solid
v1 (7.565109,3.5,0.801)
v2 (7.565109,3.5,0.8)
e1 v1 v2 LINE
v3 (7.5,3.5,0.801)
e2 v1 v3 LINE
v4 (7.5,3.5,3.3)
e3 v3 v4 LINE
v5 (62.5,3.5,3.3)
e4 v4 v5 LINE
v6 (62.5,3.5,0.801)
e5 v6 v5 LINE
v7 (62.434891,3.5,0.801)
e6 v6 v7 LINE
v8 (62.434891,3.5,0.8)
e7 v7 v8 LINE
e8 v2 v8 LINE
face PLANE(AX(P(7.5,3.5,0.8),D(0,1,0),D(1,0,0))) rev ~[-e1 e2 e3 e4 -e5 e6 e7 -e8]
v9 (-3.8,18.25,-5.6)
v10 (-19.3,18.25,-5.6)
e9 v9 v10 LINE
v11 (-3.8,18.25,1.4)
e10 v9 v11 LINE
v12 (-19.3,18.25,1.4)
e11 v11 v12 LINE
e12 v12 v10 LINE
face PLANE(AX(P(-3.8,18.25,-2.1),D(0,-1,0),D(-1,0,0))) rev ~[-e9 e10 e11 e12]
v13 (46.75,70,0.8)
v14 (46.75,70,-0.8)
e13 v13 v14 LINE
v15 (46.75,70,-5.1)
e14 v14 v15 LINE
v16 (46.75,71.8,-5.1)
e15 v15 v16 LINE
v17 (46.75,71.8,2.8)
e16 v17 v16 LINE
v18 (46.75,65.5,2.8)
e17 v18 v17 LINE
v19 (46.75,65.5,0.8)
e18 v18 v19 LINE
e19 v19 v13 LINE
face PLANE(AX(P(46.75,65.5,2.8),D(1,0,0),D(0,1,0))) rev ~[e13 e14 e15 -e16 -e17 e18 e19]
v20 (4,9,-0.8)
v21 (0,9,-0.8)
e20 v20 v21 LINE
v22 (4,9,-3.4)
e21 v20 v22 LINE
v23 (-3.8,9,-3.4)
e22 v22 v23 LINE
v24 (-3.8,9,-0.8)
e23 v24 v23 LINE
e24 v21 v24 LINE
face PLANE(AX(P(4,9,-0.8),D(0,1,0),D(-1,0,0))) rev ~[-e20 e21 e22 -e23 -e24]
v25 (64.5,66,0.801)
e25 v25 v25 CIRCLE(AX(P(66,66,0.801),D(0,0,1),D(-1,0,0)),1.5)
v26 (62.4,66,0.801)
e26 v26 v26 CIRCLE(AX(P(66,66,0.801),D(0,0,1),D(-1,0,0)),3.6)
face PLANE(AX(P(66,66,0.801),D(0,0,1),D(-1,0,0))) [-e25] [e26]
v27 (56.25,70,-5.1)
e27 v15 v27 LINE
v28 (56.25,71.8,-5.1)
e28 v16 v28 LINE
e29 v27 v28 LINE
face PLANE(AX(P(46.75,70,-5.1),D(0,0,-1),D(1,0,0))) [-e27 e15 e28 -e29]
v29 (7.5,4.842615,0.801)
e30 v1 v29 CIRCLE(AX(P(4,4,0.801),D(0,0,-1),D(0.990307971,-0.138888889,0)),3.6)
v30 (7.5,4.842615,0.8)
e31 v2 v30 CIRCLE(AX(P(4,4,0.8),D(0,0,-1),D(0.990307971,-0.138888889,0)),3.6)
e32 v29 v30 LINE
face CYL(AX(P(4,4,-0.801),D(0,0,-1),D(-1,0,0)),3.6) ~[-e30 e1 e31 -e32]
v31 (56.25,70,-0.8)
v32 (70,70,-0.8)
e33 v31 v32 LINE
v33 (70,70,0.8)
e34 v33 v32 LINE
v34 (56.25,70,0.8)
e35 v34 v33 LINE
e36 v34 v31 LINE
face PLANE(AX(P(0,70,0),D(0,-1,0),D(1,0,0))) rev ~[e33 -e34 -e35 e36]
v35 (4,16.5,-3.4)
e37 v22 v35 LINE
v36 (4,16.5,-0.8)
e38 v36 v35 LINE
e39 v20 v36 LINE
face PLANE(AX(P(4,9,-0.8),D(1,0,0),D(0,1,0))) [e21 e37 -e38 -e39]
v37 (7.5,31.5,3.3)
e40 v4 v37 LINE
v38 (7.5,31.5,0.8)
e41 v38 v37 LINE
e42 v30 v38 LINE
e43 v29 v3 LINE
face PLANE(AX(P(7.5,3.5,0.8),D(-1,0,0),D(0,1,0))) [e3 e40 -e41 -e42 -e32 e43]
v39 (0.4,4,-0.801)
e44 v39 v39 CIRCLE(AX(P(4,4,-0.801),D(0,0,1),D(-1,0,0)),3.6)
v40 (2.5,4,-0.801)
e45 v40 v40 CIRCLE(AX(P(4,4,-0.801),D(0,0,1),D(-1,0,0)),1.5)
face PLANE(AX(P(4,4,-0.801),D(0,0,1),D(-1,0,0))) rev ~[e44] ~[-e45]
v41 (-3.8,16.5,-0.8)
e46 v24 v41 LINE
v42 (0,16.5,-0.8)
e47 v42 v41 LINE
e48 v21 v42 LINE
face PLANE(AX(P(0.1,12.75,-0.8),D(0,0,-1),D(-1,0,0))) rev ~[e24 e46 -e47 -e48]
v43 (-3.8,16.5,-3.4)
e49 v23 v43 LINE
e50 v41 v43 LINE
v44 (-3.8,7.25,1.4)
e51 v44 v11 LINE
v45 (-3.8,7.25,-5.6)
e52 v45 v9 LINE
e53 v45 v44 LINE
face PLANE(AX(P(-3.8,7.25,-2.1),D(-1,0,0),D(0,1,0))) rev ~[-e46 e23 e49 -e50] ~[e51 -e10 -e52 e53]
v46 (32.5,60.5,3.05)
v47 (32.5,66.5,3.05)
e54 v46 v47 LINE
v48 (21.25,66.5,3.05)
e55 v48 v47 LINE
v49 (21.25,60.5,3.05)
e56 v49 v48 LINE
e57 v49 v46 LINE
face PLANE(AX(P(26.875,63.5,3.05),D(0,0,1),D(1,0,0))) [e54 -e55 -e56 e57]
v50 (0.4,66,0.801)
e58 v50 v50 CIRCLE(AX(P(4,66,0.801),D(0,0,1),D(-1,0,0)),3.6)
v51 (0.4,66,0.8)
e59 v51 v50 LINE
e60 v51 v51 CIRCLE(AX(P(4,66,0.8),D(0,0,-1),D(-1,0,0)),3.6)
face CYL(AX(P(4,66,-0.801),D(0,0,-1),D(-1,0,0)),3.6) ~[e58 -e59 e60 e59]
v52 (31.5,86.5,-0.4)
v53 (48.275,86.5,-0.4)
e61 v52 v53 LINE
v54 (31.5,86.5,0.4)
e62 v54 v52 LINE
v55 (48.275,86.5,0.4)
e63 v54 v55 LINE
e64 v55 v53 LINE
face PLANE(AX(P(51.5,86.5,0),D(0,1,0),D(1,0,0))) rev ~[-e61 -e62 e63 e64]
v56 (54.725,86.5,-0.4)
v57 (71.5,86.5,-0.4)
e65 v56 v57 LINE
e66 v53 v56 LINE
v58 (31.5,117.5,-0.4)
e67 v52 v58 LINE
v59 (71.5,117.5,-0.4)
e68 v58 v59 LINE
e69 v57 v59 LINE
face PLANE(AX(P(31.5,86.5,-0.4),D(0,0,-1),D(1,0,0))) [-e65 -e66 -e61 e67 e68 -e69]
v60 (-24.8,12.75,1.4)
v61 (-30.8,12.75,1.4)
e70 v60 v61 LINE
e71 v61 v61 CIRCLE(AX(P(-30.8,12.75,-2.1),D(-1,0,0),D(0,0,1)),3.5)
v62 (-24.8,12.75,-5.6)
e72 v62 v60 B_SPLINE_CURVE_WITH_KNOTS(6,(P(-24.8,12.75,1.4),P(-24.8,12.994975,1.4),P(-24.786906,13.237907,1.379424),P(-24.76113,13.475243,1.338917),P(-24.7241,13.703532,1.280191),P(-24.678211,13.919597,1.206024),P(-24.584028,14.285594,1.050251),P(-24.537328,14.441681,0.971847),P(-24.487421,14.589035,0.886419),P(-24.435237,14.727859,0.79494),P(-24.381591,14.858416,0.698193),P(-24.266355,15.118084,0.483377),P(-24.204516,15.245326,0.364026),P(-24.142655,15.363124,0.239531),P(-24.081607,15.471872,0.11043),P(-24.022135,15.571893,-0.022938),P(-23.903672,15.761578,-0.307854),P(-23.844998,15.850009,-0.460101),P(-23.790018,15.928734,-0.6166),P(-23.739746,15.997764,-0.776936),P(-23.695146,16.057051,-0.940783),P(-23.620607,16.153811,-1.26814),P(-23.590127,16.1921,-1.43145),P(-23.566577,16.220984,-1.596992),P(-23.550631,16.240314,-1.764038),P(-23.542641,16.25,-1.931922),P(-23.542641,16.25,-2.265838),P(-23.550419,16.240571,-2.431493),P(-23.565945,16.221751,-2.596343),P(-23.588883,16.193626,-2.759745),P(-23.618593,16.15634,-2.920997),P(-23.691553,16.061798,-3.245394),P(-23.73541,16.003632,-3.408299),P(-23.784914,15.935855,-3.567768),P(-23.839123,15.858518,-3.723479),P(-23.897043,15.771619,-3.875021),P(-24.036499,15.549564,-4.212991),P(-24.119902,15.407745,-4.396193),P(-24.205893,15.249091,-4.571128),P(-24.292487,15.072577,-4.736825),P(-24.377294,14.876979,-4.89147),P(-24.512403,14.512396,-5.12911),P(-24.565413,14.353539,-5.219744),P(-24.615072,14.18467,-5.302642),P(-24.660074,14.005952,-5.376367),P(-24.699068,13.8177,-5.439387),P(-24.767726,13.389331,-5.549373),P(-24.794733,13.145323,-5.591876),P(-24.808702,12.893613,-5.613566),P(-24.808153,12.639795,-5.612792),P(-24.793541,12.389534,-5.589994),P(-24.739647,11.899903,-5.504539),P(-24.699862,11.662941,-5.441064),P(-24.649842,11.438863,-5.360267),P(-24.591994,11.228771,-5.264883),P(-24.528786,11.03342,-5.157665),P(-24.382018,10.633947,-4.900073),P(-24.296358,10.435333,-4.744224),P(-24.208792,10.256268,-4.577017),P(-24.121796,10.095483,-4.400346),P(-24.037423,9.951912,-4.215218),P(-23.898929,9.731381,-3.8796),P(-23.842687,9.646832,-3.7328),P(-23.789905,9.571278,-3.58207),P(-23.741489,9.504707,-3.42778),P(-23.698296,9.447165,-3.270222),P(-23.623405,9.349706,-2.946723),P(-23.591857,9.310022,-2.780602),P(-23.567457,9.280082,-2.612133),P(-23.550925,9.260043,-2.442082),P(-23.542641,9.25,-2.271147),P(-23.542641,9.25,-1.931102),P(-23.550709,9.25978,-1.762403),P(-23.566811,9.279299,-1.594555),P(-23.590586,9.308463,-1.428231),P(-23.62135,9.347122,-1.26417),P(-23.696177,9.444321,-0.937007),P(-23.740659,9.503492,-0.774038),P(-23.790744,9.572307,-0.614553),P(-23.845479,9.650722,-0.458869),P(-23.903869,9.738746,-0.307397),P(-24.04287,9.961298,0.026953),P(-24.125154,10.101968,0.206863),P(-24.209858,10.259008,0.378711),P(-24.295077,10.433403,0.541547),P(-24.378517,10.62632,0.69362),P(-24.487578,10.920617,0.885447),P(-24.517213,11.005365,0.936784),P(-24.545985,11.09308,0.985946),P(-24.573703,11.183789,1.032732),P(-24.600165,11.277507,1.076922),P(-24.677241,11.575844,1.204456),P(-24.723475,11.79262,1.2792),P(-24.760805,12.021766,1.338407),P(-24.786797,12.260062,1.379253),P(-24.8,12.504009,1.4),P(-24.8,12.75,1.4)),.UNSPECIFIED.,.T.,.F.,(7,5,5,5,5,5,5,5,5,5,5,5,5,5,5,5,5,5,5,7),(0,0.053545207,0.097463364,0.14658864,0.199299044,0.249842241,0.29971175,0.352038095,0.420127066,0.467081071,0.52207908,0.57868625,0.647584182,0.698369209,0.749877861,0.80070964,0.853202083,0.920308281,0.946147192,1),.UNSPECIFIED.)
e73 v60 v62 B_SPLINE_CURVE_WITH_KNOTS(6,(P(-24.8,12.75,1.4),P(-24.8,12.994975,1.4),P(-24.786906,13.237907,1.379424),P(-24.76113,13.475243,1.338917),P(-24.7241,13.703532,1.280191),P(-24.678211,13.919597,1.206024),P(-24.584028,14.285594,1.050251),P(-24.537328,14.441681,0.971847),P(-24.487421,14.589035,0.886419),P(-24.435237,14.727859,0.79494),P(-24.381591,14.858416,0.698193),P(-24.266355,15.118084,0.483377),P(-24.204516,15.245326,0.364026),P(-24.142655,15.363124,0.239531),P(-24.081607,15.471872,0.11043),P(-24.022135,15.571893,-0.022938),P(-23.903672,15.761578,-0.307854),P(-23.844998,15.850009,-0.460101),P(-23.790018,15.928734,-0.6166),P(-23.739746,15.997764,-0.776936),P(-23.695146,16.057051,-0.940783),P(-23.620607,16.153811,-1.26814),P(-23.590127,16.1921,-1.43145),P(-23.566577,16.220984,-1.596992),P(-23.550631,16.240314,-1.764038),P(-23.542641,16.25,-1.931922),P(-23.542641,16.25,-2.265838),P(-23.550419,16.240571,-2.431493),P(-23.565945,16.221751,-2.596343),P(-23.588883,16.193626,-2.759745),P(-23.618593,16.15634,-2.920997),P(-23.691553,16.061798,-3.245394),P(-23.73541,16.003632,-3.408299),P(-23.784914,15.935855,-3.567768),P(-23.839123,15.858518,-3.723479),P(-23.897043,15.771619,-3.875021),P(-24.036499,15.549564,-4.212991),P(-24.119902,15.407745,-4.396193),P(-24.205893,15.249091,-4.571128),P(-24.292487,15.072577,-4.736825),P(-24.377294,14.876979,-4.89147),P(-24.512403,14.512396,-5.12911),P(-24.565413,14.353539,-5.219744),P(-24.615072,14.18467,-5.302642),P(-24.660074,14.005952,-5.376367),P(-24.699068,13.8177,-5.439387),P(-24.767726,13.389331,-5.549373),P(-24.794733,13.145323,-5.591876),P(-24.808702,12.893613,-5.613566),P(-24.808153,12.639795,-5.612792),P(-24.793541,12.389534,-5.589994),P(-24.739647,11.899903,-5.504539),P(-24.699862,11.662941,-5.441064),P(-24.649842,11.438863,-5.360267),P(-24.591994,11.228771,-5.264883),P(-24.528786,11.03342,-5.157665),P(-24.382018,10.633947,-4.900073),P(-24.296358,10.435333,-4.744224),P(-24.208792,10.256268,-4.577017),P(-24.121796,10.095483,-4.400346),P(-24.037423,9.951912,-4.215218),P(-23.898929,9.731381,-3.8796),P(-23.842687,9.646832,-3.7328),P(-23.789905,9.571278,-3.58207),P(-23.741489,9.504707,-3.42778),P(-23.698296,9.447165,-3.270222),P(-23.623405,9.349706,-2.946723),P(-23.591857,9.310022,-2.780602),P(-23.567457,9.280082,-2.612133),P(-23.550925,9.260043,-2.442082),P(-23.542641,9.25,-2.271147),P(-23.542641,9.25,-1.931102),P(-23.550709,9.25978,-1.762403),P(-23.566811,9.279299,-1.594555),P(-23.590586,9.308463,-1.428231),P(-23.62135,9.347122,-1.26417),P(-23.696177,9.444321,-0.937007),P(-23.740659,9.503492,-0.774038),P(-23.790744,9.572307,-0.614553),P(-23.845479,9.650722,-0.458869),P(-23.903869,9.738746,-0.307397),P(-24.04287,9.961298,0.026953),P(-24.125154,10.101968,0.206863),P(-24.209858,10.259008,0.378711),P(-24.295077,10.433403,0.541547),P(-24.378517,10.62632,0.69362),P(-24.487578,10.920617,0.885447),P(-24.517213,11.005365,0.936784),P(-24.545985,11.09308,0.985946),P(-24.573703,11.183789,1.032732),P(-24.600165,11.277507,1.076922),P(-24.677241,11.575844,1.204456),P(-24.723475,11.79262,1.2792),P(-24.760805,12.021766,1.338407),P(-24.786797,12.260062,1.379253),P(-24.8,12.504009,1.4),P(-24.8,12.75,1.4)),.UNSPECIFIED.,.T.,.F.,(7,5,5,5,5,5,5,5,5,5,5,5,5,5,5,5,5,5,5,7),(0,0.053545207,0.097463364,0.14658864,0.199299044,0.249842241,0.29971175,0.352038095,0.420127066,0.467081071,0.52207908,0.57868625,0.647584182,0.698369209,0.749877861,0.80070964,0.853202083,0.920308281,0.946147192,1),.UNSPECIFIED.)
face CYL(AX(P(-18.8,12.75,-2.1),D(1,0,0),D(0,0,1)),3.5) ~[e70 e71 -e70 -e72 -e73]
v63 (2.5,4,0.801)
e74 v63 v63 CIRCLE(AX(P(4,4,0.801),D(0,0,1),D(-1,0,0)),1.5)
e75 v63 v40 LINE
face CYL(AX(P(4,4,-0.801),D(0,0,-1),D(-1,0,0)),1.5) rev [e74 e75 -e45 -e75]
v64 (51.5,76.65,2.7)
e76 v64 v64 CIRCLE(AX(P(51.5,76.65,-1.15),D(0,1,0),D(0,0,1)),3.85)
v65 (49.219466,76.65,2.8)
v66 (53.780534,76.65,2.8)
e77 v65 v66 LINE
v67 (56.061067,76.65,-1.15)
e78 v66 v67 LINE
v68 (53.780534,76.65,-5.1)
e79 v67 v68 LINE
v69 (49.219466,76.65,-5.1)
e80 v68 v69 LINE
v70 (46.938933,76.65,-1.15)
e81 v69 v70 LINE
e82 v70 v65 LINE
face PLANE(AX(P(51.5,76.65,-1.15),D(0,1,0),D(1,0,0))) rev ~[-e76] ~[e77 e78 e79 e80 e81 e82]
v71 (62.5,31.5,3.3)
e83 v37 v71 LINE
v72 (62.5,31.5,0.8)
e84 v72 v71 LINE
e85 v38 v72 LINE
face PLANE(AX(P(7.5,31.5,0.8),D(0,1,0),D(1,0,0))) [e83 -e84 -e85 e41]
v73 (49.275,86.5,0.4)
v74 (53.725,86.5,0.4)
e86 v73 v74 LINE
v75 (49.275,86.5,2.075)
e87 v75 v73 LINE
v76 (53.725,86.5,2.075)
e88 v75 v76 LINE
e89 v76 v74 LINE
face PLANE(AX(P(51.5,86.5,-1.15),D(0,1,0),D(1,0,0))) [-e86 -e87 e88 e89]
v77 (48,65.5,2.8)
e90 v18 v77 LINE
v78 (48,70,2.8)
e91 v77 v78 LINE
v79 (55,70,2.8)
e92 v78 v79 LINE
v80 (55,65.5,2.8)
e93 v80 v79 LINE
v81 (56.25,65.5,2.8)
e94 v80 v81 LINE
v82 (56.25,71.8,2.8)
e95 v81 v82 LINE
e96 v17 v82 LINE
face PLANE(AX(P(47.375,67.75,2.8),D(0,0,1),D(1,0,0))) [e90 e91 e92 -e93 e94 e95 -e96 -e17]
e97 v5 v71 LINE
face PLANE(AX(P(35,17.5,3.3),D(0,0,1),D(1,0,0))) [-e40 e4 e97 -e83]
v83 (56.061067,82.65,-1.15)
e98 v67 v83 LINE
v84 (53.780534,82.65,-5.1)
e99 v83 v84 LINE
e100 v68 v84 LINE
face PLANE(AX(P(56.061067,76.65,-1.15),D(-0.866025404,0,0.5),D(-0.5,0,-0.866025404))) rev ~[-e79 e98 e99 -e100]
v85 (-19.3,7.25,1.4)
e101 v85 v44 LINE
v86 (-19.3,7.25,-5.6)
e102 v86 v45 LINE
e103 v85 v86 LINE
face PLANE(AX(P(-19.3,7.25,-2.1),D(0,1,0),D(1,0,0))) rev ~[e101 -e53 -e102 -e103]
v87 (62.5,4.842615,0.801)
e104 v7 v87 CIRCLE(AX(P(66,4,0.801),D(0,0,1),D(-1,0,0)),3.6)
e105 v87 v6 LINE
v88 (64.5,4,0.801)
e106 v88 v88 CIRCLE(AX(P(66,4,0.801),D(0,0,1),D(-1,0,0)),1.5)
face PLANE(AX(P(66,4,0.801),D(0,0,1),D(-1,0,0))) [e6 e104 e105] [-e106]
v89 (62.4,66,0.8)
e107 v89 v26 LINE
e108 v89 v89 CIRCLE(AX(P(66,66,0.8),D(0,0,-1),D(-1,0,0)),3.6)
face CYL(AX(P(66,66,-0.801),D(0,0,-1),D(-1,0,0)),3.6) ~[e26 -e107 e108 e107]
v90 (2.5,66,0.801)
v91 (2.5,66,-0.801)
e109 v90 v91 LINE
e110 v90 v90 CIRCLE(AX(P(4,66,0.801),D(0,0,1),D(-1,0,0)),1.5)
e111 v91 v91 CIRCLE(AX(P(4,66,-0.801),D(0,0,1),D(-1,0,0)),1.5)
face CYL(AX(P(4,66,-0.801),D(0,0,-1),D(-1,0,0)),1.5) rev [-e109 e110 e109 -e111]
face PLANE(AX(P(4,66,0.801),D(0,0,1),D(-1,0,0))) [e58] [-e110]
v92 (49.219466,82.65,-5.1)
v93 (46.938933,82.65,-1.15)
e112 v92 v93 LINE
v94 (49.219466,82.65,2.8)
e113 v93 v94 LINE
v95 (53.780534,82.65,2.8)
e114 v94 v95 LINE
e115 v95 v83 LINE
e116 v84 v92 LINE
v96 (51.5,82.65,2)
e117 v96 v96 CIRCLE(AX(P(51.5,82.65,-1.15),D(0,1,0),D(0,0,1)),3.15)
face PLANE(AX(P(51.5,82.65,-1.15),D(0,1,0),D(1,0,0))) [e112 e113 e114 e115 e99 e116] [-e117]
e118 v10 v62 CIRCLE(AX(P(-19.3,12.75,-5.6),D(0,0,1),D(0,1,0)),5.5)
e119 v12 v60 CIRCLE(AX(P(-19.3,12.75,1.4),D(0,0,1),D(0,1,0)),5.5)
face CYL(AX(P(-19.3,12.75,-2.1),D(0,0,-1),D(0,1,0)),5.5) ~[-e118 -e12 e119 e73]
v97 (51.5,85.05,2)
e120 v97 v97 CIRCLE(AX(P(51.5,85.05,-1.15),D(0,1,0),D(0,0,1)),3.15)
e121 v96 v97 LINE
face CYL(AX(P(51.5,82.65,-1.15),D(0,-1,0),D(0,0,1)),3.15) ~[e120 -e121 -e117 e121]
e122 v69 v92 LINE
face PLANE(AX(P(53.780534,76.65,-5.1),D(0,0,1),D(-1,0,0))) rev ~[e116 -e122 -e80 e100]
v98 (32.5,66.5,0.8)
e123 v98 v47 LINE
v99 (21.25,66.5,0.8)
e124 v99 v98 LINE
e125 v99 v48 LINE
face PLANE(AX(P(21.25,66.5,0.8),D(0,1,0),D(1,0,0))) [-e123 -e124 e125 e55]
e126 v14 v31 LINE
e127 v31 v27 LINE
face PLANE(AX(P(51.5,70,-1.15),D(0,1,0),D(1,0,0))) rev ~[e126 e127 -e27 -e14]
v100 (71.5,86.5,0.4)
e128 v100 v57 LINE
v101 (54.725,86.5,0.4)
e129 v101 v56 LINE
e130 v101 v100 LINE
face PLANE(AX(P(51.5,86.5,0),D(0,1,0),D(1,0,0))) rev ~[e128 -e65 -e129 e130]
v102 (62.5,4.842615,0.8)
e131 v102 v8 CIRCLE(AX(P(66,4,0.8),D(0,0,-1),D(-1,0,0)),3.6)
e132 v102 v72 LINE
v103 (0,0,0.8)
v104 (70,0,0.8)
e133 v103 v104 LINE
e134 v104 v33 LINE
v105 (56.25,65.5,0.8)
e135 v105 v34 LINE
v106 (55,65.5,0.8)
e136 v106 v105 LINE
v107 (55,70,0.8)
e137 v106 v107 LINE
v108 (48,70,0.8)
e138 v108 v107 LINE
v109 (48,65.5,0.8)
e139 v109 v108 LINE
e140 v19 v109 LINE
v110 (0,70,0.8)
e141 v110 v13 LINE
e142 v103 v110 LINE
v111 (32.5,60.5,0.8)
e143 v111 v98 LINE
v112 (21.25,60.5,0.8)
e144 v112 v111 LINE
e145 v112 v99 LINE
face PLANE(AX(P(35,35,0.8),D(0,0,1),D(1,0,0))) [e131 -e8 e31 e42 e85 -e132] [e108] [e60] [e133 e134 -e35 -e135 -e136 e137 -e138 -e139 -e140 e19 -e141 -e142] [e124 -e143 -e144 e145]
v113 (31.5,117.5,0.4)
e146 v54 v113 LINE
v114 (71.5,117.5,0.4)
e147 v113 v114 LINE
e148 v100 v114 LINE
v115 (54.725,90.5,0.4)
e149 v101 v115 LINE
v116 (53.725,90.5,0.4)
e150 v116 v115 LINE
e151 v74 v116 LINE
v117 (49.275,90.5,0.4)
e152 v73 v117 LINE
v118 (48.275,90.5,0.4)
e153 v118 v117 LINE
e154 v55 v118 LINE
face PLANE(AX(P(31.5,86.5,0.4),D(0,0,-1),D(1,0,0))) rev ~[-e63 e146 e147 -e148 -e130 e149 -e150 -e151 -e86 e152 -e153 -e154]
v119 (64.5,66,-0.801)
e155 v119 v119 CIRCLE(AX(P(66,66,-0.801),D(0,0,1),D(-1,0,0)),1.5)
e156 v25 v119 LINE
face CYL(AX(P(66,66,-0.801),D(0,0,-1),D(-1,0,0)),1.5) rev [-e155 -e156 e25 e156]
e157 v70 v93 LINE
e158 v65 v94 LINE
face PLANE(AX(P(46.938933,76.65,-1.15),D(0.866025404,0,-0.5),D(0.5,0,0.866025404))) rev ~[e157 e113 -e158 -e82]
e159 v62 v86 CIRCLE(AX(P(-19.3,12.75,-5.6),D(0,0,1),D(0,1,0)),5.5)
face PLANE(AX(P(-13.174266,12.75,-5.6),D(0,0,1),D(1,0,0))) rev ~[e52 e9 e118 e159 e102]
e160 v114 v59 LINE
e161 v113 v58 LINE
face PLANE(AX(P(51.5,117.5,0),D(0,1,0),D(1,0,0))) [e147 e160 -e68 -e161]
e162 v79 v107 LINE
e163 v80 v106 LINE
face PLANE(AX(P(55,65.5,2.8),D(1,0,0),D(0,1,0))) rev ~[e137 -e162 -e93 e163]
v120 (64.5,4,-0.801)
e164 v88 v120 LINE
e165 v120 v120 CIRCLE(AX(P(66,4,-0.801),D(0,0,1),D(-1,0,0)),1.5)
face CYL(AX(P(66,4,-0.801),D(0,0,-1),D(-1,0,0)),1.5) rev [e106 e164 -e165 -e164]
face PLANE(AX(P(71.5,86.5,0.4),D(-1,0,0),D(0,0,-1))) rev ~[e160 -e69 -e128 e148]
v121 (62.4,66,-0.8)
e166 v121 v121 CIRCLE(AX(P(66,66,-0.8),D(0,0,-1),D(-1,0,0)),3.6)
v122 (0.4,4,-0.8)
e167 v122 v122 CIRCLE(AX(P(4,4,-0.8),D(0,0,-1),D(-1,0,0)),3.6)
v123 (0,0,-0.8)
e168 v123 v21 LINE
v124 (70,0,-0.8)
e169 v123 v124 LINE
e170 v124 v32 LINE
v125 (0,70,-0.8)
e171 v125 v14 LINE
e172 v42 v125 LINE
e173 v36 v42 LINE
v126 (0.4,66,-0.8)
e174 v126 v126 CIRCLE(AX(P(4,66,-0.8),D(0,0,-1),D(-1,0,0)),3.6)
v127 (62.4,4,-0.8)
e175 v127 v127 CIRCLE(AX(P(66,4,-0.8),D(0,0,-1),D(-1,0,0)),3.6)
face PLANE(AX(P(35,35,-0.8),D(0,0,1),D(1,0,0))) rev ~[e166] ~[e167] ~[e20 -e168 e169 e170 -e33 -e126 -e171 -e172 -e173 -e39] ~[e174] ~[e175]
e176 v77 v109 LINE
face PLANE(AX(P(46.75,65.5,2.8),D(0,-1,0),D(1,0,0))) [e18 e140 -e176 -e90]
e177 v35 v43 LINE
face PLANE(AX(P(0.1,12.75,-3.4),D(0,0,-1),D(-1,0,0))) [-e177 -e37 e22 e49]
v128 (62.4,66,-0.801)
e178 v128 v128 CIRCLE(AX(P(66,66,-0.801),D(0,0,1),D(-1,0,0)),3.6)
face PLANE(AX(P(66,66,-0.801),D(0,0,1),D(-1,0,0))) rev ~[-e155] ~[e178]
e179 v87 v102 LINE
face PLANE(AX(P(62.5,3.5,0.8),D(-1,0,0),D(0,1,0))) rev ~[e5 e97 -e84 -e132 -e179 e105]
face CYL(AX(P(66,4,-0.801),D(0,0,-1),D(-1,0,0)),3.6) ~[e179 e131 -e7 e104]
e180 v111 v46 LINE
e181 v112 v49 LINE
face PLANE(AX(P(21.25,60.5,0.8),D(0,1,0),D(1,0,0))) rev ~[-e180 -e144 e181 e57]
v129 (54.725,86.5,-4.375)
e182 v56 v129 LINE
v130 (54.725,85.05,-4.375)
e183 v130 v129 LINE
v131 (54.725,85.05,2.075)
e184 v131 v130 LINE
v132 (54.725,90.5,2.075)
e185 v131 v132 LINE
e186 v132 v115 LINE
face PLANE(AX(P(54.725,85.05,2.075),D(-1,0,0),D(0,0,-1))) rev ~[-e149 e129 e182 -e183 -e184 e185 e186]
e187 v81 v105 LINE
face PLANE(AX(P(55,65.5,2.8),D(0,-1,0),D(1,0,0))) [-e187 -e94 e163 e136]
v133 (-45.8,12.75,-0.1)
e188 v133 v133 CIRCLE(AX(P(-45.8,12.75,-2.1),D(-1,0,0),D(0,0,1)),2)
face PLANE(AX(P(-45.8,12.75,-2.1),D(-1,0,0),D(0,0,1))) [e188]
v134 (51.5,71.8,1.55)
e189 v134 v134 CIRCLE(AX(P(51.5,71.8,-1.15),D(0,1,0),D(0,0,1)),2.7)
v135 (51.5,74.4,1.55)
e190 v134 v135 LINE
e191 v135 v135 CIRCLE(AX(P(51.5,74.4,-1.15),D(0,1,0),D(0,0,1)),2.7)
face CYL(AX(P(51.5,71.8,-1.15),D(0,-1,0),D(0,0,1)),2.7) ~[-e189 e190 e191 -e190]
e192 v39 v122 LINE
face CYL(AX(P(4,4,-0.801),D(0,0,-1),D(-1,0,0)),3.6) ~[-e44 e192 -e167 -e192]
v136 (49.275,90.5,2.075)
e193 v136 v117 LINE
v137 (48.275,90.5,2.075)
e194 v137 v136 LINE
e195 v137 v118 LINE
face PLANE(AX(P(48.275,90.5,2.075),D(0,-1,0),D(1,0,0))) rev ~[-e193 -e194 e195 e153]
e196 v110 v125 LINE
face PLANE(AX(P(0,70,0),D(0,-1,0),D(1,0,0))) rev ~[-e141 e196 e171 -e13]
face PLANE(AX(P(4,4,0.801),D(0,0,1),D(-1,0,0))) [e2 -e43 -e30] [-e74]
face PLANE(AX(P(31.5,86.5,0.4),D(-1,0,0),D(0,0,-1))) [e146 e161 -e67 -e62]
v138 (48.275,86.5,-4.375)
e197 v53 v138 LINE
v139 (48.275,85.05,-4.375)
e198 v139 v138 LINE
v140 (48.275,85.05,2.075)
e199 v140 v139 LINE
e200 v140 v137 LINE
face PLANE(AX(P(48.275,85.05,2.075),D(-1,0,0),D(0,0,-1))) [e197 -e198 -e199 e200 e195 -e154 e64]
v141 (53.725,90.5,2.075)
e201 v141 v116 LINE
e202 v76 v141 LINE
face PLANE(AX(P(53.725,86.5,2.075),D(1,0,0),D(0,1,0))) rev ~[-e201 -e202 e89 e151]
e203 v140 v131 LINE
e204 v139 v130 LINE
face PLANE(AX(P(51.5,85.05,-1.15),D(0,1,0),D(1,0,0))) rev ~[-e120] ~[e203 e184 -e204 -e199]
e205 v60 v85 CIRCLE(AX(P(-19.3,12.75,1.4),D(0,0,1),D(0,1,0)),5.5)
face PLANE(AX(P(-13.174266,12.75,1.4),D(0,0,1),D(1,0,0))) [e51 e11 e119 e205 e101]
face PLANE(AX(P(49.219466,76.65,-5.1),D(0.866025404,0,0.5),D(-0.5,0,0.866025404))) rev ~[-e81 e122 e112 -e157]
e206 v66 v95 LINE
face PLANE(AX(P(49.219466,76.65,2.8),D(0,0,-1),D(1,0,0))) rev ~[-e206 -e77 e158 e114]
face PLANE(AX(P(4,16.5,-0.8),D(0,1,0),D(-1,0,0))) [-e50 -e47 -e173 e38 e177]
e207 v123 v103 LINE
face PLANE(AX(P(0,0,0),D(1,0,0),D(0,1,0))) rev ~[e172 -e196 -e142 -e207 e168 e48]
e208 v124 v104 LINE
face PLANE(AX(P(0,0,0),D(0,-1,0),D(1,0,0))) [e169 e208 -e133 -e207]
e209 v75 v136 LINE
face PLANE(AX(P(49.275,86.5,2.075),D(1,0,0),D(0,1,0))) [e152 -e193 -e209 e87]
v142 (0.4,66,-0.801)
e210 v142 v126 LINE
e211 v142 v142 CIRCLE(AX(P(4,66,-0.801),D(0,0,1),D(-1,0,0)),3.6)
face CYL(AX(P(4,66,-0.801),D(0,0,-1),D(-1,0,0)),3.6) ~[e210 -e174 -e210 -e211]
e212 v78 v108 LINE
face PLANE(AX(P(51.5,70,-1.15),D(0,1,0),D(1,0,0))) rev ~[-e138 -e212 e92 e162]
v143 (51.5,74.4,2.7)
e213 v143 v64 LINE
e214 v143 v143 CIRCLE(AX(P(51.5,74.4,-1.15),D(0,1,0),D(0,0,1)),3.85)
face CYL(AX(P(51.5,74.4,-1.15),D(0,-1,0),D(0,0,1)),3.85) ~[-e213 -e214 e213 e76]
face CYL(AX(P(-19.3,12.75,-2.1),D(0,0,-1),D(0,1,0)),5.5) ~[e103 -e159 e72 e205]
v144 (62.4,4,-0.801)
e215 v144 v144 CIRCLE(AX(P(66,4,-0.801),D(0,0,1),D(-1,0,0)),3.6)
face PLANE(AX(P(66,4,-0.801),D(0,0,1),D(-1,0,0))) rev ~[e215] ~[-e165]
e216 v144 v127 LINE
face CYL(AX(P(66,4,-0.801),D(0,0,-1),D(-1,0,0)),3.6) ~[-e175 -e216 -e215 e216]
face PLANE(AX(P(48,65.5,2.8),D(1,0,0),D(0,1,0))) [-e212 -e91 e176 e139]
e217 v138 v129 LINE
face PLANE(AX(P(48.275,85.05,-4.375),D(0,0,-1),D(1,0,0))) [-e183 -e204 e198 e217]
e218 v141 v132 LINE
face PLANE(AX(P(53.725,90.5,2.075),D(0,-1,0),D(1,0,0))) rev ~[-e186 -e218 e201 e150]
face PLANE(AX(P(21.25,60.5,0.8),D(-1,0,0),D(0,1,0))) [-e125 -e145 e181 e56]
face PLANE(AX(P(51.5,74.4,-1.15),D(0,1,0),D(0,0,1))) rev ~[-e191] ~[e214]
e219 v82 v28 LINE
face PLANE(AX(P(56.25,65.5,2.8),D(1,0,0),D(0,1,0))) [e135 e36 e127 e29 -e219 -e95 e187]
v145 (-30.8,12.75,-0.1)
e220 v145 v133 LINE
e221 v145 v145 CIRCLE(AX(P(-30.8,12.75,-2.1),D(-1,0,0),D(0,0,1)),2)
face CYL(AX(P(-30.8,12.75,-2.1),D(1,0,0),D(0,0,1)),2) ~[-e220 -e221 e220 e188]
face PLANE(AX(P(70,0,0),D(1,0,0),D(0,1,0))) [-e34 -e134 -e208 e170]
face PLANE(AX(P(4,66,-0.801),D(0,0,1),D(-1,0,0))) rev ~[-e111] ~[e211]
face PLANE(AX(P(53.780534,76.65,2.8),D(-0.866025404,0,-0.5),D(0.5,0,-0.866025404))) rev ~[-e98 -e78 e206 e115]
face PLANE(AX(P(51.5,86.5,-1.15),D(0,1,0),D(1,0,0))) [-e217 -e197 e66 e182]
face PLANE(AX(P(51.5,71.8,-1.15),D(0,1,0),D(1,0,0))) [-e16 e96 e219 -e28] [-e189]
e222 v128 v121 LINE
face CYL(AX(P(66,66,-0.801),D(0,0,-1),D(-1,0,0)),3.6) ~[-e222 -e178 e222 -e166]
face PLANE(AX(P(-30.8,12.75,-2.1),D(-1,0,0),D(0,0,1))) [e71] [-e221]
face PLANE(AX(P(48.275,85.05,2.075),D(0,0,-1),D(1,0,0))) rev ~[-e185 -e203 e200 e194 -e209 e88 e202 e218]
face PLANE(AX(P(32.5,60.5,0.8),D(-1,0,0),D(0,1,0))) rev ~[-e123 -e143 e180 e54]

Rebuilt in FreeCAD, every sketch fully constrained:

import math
import FreeCAD as App
import Part
import Sketcher
from FreeCAD import Vector
Q = App.Units.Quantity


def add_polygon(sketch, points):
    """Adds a closed chain of lines whose ends are joined by coincident constraints."""
    first, n = sketch.GeometryCount, len(points)
    for a, b in zip(points, points[1:] + points[:1]):
        sketch.addGeometry(Part.LineSegment(App.Vector(*a, 0), App.Vector(*b, 0)), False)
    for i in range(n):
        sketch.addConstraint(Sketcher.Constraint("Coincident", first + i, 2, first + (i + 1) % n, 1))

doc = App.newDocument("Part")
params = doc.addObject("Spreadsheet::Sheet", "Params")
for row, (alias, value) in enumerate([
    ("sketch1_width", "70 mm"),
    ("pad1_length", "1.6 mm"),
    ("sketch2_diameter", "3 mm"),
    ("sketch3_diameter", "3 mm"),
    ("sketch3_diameter2", "7.2 mm"),
    ("pad2_length", "0.801 mm"),
    ("pad2_length2", "0.801 mm"),
    ("sketch4_width", "9.5 mm"),
    ("sketch4_height", "7.9 mm"),
    ("pad3_length", "1.8 mm"),
    ("sketch5_height", "4.5 mm"),
    ("sketch5_width", "1.25 mm"),
    ("pad4_length", "2 mm"),
    ("sketch6_diameter", "5.4 mm"),
    ("pad5_length", "2.6 mm"),
    ("sketch7_diameter", "7.7 mm"),
    ("pad6_length", "2.25 mm"),
    ("pad7_length", "6 mm"),
    ("sketch9_diameter", "6.3 mm"),
    ("pad8_length", "2.4 mm"),
    ("sketch10_width", "6.45 mm"),
    ("pad9_length", "1.45 mm"),
    ("sketch11_width", "40 mm"),
    ("sketch11_height", "0.8 mm"),
    ("pad10_length", "31 mm"),
    ("sketch12_width", "1 mm"),
    ("sketch12_height", "4 mm"),
    ("pad11_length", "1.675 mm"),
    ("sketch13_width", "55 mm"),
    ("sketch13_height", "28 mm"),
    ("pad12_length", "2.5 mm"),
    ("sketch14_height", "6 mm"),
    ("sketch14_width", "11.25 mm"),
    ("pad13_length", "2.25 mm"),
    ("sketch15_width", "7.8 mm"),
    ("sketch15_height", "7.5 mm"),
    ("pad14_length", "2.6 mm"),
    ("sketch16_radius", "5.5 mm"),
    ("sketch16_width", "15.5 mm"),
    ("pad15_length", "7 mm"),
    ("sketch17_diameter", "7 mm"),
    ("pad16_length", "6 mm"),
    ("pad16_length2", "6 mm"),
    ("sketch18_diameter", "4 mm"),
    ("pad17_length", "15 mm"),
], start=1):
    params.set(f"A{row}", alias)
    params.set(f"B{row}", "=" + value)
    params.setAlias(f"B{row}", alias)

body = doc.addObject("PartDesign::Body", "Body")

# Sketch on XY plane
sketch1 = body.newObject("Sketcher::SketchObject", "Sketch")
sketch1.AttachmentSupport = (doc.getObject("XY_Plane"), [""])
sketch1.MapMode = "FlatFace"
add_polygon(sketch1, [(0, 70), (0, 0), (70, 0), (70, 70)])  # lines 0-3
sketch1.addConstraint([
    Sketcher.Constraint("Vertical", 0),
    Sketcher.Constraint("Horizontal", 1),
    Sketcher.Constraint("Vertical", 2),
    Sketcher.Constraint("Horizontal", 3),
    Sketcher.Constraint("Coincident", 0, 2, -1, 1),
    Sketcher.Constraint("Equal", 3, 0),
    Sketcher.Constraint("DistanceX", 1, 1, 1, 2, 70.0),
])
sketch1.setExpression("Constraints[10]", "Params.sketch1_width")
pad1 = body.newObject("PartDesign::Pad", "Pad")
pad1.Profile = sketch1
pad1.setExpression("Length", "Params.pad1_length")
pad1.Midplane = True

# Sketch on XY plane
sketch2 = body.newObject("Sketcher::SketchObject", "Sketch001")
sketch2.AttachmentSupport = (doc.getObject("XY_Plane"), [""])
sketch2.MapMode = "FlatFace"
sketch2.AttachmentOffset = App.Placement(Vector(0, 0, 0.8), App.Rotation())
sketch2.addGeometry([
    Part.Circle(Vector(4, 4, 0), Vector(0, 0, 1), 1.5),
    Part.Circle(Vector(66, 4, 0), Vector(0, 0, 1), 1.5),
    Part.Circle(Vector(66, 66, 0), Vector(0, 0, 1), 1.5),
    Part.Circle(Vector(4, 66, 0), Vector(0, 0, 1), 1.5),
], False)
sketch2.addConstraint([
    Sketcher.Constraint("Equal", 0, 1),
    Sketcher.Constraint("Equal", 1, 2),
    Sketcher.Constraint("Equal", 2, 3),
    Sketcher.Constraint("Horizontal", 0, 3, 1, 3),
    Sketcher.Constraint("Horizontal", 2, 3, 3, 3),
    Sketcher.Constraint("Vertical", 1, 3, 2, 3),
    Sketcher.Constraint("Vertical", 0, 3, 3, 3),
    Sketcher.Constraint("Diameter", 0, 3.0),
    Sketcher.Constraint("DistanceX", -1, 1, 0, 3, 4.0),
    Sketcher.Constraint("DistanceY", -1, 1, 0, 3, 4.0),
    Sketcher.Constraint("DistanceX", -1, 1, 1, 3, 66.0),
    Sketcher.Constraint("DistanceY", -1, 1, 2, 3, 66.0),
])
sketch2.setExpression("Constraints[7]", "Params.sketch2_diameter")
pocket1 = body.newObject("PartDesign::Pocket", "Pocket")
pocket1.Profile = sketch2
pocket1.Type = "ThroughAll"

# Sketch on XY plane
sketch3 = body.newObject("Sketcher::SketchObject", "Sketch002")
sketch3.AttachmentSupport = (doc.getObject("XY_Plane"), [""])
sketch3.MapMode = "FlatFace"
sketch3.addGeometry([
    Part.Circle(Vector(4, 66, 0), Vector(0, 0, 1), 3.6),  # 0
    Part.Circle(Vector(4, 66, 0), Vector(0, 0, 1), 1.5),  # 1
    Part.Circle(Vector(66, 66, 0), Vector(0, 0, 1), 3.6),  # 2
    Part.Circle(Vector(66, 66, 0), Vector(0, 0, 1), 1.5),  # 3
    Part.Circle(Vector(66, 4, 0), Vector(0, 0, 1), 3.6),  # 4
    Part.Circle(Vector(66, 4, 0), Vector(0, 0, 1), 1.5),  # 5
    Part.Circle(Vector(4, 4, 0), Vector(0, 0, 1), 3.6),  # 6
    Part.Circle(Vector(4, 4, 0), Vector(0, 0, 1), 1.5),  # 7
], False)
sketch3.addConstraint([
    Sketcher.Constraint("Coincident", 1, 3, 0, 3),
    Sketcher.Constraint("Coincident", 3, 3, 2, 3),
    Sketcher.Constraint("Coincident", 5, 3, 4, 3),
    Sketcher.Constraint("Coincident", 7, 3, 6, 3),
    Sketcher.Constraint("Equal", 0, 2),
    Sketcher.Constraint("Equal", 1, 3),
    Sketcher.Constraint("Equal", 2, 4),
    Sketcher.Constraint("Equal", 3, 5),
    Sketcher.Constraint("Equal", 4, 6),
    Sketcher.Constraint("Equal", 5, 7),
    Sketcher.Constraint("Horizontal", 1, 3, 2, 3),
    Sketcher.Constraint("Horizontal", 5, 3, 6, 3),
    Sketcher.Constraint("Vertical", 3, 3, 4, 3),
    Sketcher.Constraint("Vertical", 1, 3, 6, 3),
    Sketcher.Constraint("Diameter", 1, 3.0),
    Sketcher.Constraint("Diameter", 0, 7.2),
    Sketcher.Constraint("DistanceX", -1, 1, 0, 3, 4.0),
    Sketcher.Constraint("DistanceY", -1, 1, 0, 3, 66.0),
    Sketcher.Constraint("DistanceX", -1, 1, 2, 3, 66.0),
    Sketcher.Constraint("DistanceY", -1, 1, 4, 3, 4.0),
])
sketch3.setExpression("Constraints[14]", "Params.sketch3_diameter")
sketch3.setExpression("Constraints[15]", "Params.sketch3_diameter2")
pad2 = body.newObject("PartDesign::Pad", "Pad001")
pad2.Profile = sketch3
pad2.Type = "TwoLengths"
pad2.setExpression("Length", "Params.pad2_length")
pad2.setExpression("Length2", "Params.pad2_length2")

# Sketch on XZ plane
sketch4 = body.newObject("Sketcher::SketchObject", "Sketch003")
sketch4.AttachmentSupport = (doc.getObject("XZ_Plane"), [""])
sketch4.MapMode = "FlatFace"
sketch4.AttachmentOffset = App.Placement(Vector(0, 0, -70), App.Rotation())
add_polygon(sketch4, [(47, -5), (47, 3), (56, 3), (56, -5)])  # lines 0-3
sketch4.addConstraint([
    Sketcher.Constraint("Vertical", 0),
    Sketcher.Constraint("Horizontal", 1),
    Sketcher.Constraint("Vertical", 2),
    Sketcher.Constraint("Horizontal", 3),
    Sketcher.Constraint("DistanceX", 1, 1, 1, 2, 9.5),
    Sketcher.Constraint("DistanceY", 0, 1, 0, 2, 7.9),
    Sketcher.Constraint("DistanceY", -1, 1, 0, 2, 2.8),
    Sketcher.Constraint("DistanceX", -1, 1, 0, 2, 46.75),
])
sketch4.setExpression("Constraints[8]", "Params.sketch4_width")
sketch4.setExpression("Constraints[9]", "Params.sketch4_height")
pad3 = body.newObject("PartDesign::Pad", "Pad002")
pad3.Profile = sketch4
pad3.setExpression("Length", "Params.pad3_length")
pad3.Reversed = True

# Sketch on XY plane
sketch5 = body.newObject("Sketcher::SketchObject", "Sketch004")
sketch5.AttachmentSupport = (doc.getObject("XY_Plane"), [""])
sketch5.MapMode = "FlatFace"
sketch5.AttachmentOffset = App.Placement(Vector(0, 0, 2.8), App.Rotation())
add_polygon(sketch5, [(46.8, 70), (46.8, 65.5), (48, 65.5), (48, 70)])  # lines 0-3
add_polygon(sketch5, [(55, 70), (55, 65.5), (56.2, 65.5), (56.2, 70)])  # lines 4-7
sketch5.addConstraint([
    Sketcher.Constraint("Vertical", 0),
    Sketcher.Constraint("Horizontal", 1),
    Sketcher.Constraint("Vertical", 2),
    Sketcher.Constraint("Horizontal", 3),
    Sketcher.Constraint("Vertical", 4),
    Sketcher.Constraint("Horizontal", 5),
    Sketcher.Constraint("Vertical", 6),
    Sketcher.Constraint("Horizontal", 7),
    Sketcher.Constraint("Horizontal", 1, 2, 4, 2),
    Sketcher.Constraint("Horizontal", 3, 2, 6, 2),
    Sketcher.Constraint("Equal", 3, 5),
    Sketcher.Constraint("DistanceY", 0, 2, 0, 1, 4.5),
    Sketcher.Constraint("DistanceX", -1, 1, 1, 2, 48.0),
    Sketcher.Constraint("DistanceY", -1, 1, 2, 2, 70.0),
    Sketcher.Constraint("DistanceX", -1, 1, 4, 2, 55.0),
    Sketcher.Constraint("DistanceX", 1, 1, 1, 2, 1.25),
])
sketch5.setExpression("Constraints[19]", "Params.sketch5_height")
sketch5.setExpression("Constraints[23]", "Params.sketch5_width")
pad4 = body.newObject("PartDesign::Pad", "Pad003")
pad4.Profile = sketch5
pad4.setExpression("Length", "Params.pad4_length")
pad4.Reversed = True

# Sketch on XZ plane
sketch6 = body.newObject("Sketcher::SketchObject", "Sketch005")
sketch6.AttachmentSupport = (doc.getObject("XZ_Plane"), [""])
sketch6.MapMode = "FlatFace"
sketch6.AttachmentOffset = App.Placement(Vector(0, 0, -71.8), App.Rotation())
sketch6.addGeometry(Part.Circle(Vector(51.5, -1.1, 0), Vector(0, 0, 1), 2.7), False)
sketch6.addConstraint([
    Sketcher.Constraint("Diameter", 0, 5.4),
    Sketcher.Constraint("DistanceX", -1, 1, 0, 3, 51.5),
    Sketcher.Constraint("DistanceY", 0, 3, -1, 1, 1.15),
])
sketch6.setExpression("Constraints[0]", "Params.sketch6_diameter")
pad5 = body.newObject("PartDesign::Pad", "Pad004")
pad5.Profile = sketch6
pad5.setExpression("Length", "Params.pad5_length")
pad5.Reversed = True

# Sketch on XZ plane
sketch7 = body.newObject("Sketcher::SketchObject", "Sketch006")
sketch7.AttachmentSupport = (doc.getObject("XZ_Plane"), [""])
sketch7.MapMode = "FlatFace"
sketch7.AttachmentOffset = App.Placement(Vector(0, 0, -74.4), App.Rotation())
sketch7.addGeometry(Part.Circle(Vector(51.5, -1.1, 0), Vector(0, 0, 1), 3.9), False)
sketch7.addConstraint([
    Sketcher.Constraint("Diameter", 0, 7.7),
    Sketcher.Constraint("DistanceX", -1, 1, 0, 3, 51.5),
    Sketcher.Constraint("DistanceY", 0, 3, -1, 1, 1.15),
])
sketch7.setExpression("Constraints[0]", "Params.sketch7_diameter")
pad6 = body.newObject("PartDesign::Pad", "Pad005")
pad6.Profile = sketch7
pad6.setExpression("Length", "Params.pad6_length")
pad6.Reversed = True

# Sketch on XZ plane
sketch8 = body.newObject("Sketcher::SketchObject", "Sketch007")
sketch8.AttachmentSupport = (doc.getObject("XZ_Plane"), [""])
sketch8.MapMode = "FlatFace"
sketch8.AttachmentOffset = App.Placement(Vector(0, 0, -76.65), App.Rotation())
add_polygon(sketch8, [(49.2, 2.8), (53.8, 2.8), (56.1, -1.1), (53.8, -5.1), (49.2, -5.1), (46.9, -1.1)])  # lines 0-5
sketch8.addConstraint([
    Sketcher.Constraint("Horizontal", 0),
    Sketcher.Constraint("Horizontal", 3),
    Sketcher.Constraint("Parallel", 1, 4),
    Sketcher.Constraint("Parallel", 2, 5),
    Sketcher.Constraint("Horizontal", 1, 2, 4, 2),
    Sketcher.Constraint("Vertical", 0, 2, 2, 2),
    Sketcher.Constraint("Vertical", 3, 2, 5, 2),
    Sketcher.Constraint("Angle", 1, Q("-60 deg")),
    Sketcher.Constraint("DistanceY", -1, 1, 0, 2, 2.8),
    Sketcher.Constraint("DistanceY", 2, 2, -1, 1, 5.1),
    Sketcher.Constraint("DistanceX", 3, 2, 1, 2, 6.841601),
    Sketcher.Constraint("DistanceX", -1, 1, 0, 2, 53.780534),
])
pad7 = body.newObject("PartDesign::Pad", "Pad006")
pad7.Profile = sketch8
pad7.setExpression("Length", "Params.pad7_length")
pad7.Reversed = True

# Sketch on XZ plane
sketch9 = body.newObject("Sketcher::SketchObject", "Sketch008")
sketch9.AttachmentSupport = (doc.getObject("XZ_Plane"), [""])
sketch9.MapMode = "FlatFace"
sketch9.AttachmentOffset = App.Placement(Vector(0, 0, -82.65), App.Rotation())
sketch9.addGeometry(Part.Circle(Vector(51.5, -1.1, 0), Vector(0, 0, 1), 3.1), False)
sketch9.addConstraint([
    Sketcher.Constraint("Diameter", 0, 6.3),
    Sketcher.Constraint("DistanceX", -1, 1, 0, 3, 51.5),
    Sketcher.Constraint("DistanceY", 0, 3, -1, 1, 1.15),
])
sketch9.setExpression("Constraints[0]", "Params.sketch9_diameter")
pad8 = body.newObject("PartDesign::Pad", "Pad007")
pad8.Profile = sketch9
pad8.setExpression("Length", "Params.pad8_length")
pad8.Reversed = True

# Sketch on XZ plane
sketch10 = body.newObject("Sketcher::SketchObject", "Sketch009")
sketch10.AttachmentSupport = (doc.getObject("XZ_Plane"), [""])
sketch10.MapMode = "FlatFace"
sketch10.AttachmentOffset = App.Placement(Vector(0, 0, -85.05), App.Rotation())
add_polygon(sketch10, [(48, -4), (48, 2), (55, 2), (55, -4)])  # lines 0-3
sketch10.addConstraint([
    Sketcher.Constraint("Vertical", 0),
    Sketcher.Constraint("Horizontal", 1),
    Sketcher.Constraint("Vertical", 2),
    Sketcher.Constraint("Horizontal", 3),
    Sketcher.Constraint("Equal", 3, 0),
    Sketcher.Constraint("DistanceX", 1, 1, 1, 2, 6.45),
    Sketcher.Constraint("DistanceX", -1, 1, 0, 2, 48.275),
    Sketcher.Constraint("DistanceY", -1, 1, 0, 2, 2.075),
])
sketch10.setExpression("Constraints[9]", "Params.sketch10_width")
pad9 = body.newObject("PartDesign::Pad", "Pad008")
pad9.Profile = sketch10
pad9.setExpression("Length", "Params.pad9_length")
pad9.Reversed = True

# Sketch on XZ plane
sketch11 = body.newObject("Sketcher::SketchObject", "Sketch010")
sketch11.AttachmentSupport = (doc.getObject("XZ_Plane"), [""])
sketch11.MapMode = "FlatFace"
sketch11.AttachmentOffset = App.Placement(Vector(0, 0, -86.5), App.Rotation())
add_polygon(sketch11, [(31.5, -0.4), (31.5, 0.4), (71.5, 0.4), (71.5, -0.4)])  # lines 0-3
sketch11.addConstraint([
    Sketcher.Constraint("Vertical", 0),
    Sketcher.Constraint("Horizontal", 1),
    Sketcher.Constraint("Vertical", 2),
    Sketcher.Constraint("Horizontal", 3),
    Sketcher.Constraint("DistanceX", 1, 1, 1, 2, 40.0),
    Sketcher.Constraint("DistanceY", 0, 1, 0, 2, 0.8),
    Sketcher.Constraint("DistanceX", -1, 1, 0, 2, 31.5),
    Sketcher.Constraint("DistanceY", -1, 1, 0, 2, 0.4),
])
sketch11.setExpression("Constraints[8]", "Params.sketch11_width")
sketch11.setExpression("Constraints[9]", "Params.sketch11_height")
pad10 = body.newObject("PartDesign::Pad", "Pad009")
pad10.Profile = sketch11
pad10.setExpression("Length", "Params.pad10_length")
pad10.Reversed = True

# Sketch on XY plane
sketch12 = body.newObject("Sketcher::SketchObject", "Sketch011")
sketch12.AttachmentSupport = (doc.getObject("XY_Plane"), [""])
sketch12.MapMode = "FlatFace"
sketch12.AttachmentOffset = App.Placement(Vector(0, 0, 2.075), App.Rotation())
add_polygon(sketch12, [(48.3, 90.5), (48.3, 86.5), (49.3, 86.5), (49.3, 90.5)])  # lines 0-3
add_polygon(sketch12, [(53.7, 90.5), (53.7, 86.5), (54.7, 86.5), (54.7, 90.5)])  # lines 4-7
sketch12.addConstraint([
    Sketcher.Constraint("Vertical", 0),
    Sketcher.Constraint("Horizontal", 1),
    Sketcher.Constraint("Vertical", 2),
    Sketcher.Constraint("Horizontal", 3),
    Sketcher.Constraint("Vertical", 4),
    Sketcher.Constraint("Horizontal", 5),
    Sketcher.Constraint("Vertical", 6),
    Sketcher.Constraint("Horizontal", 7),
    Sketcher.Constraint("Horizontal", 1, 2, 4, 2),
    Sketcher.Constraint("Horizontal", 3, 2, 6, 2),
    Sketcher.Constraint("Equal", 3, 5),
    Sketcher.Constraint("DistanceX", 1, 1, 1, 2, 1.0),
    Sketcher.Constraint("DistanceY", 0, 2, 0, 1, 4.0),
    Sketcher.Constraint("DistanceY", -1, 1, 0, 2, 86.5),
    Sketcher.Constraint("DistanceX", 1, 2, 4, 2, 4.45),
    Sketcher.Constraint("DistanceX", -1, 1, 0, 2, 48.275),
])
sketch12.setExpression("Constraints[19]", "Params.sketch12_width")
sketch12.setExpression("Constraints[20]", "Params.sketch12_height")
pad11 = body.newObject("PartDesign::Pad", "Pad010")
pad11.Profile = sketch12
pad11.setExpression("Length", "Params.pad11_length")
pad11.Reversed = True

# Sketch on XY plane
sketch13 = body.newObject("Sketcher::SketchObject", "Sketch012")
sketch13.AttachmentSupport = (doc.getObject("XY_Plane"), [""])
sketch13.MapMode = "FlatFace"
sketch13.AttachmentOffset = App.Placement(Vector(0, 0, 0.8), App.Rotation())
add_polygon(sketch13, [(8, 32), (8, 4), (62, 4), (62, 32)])  # lines 0-3
sketch13.addConstraint([
    Sketcher.Constraint("Vertical", 0),
    Sketcher.Constraint("Horizontal", 1),
    Sketcher.Constraint("Vertical", 2),
    Sketcher.Constraint("Horizontal", 3),
    Sketcher.Constraint("DistanceX", 1, 1, 1, 2, 55.0),
    Sketcher.Constraint("DistanceY", 0, 2, 0, 1, 28.0),
    Sketcher.Constraint("DistanceX", -1, 1, 0, 2, 7.5),
    Sketcher.Constraint("DistanceY", -1, 1, 0, 2, 3.5),
])
sketch13.setExpression("Constraints[8]", "Params.sketch13_width")
sketch13.setExpression("Constraints[9]", "Params.sketch13_height")
pad12 = body.newObject("PartDesign::Pad", "Pad011")
pad12.Profile = sketch13
pad12.setExpression("Length", "Params.pad12_length")

# Sketch on XY plane
sketch14 = body.newObject("Sketcher::SketchObject", "Sketch013")
sketch14.AttachmentSupport = (doc.getObject("XY_Plane"), [""])
sketch14.MapMode = "FlatFace"
sketch14.AttachmentOffset = App.Placement(Vector(0, 0, 0.8), App.Rotation())
add_polygon(sketch14, [(21, 66), (21, 60), (32, 60), (32, 66)])  # lines 0-3
sketch14.addConstraint([
    Sketcher.Constraint("Vertical", 0),
    Sketcher.Constraint("Horizontal", 1),
    Sketcher.Constraint("Vertical", 2),
    Sketcher.Constraint("Horizontal", 3),
    Sketcher.Constraint("DistanceY", 0, 2, 0, 1, 6.0),
    Sketcher.Constraint("DistanceX", 1, 1, 1, 2, 11.25),
    Sketcher.Constraint("DistanceY", -1, 1, 0, 2, 60.5),
    Sketcher.Constraint("DistanceX", -1, 1, 1, 2, 32.5),
])
sketch14.setExpression("Constraints[8]", "Params.sketch14_height")
sketch14.setExpression("Constraints[9]", "Params.sketch14_width")
pad13 = body.newObject("PartDesign::Pad", "Pad012")
pad13.Profile = sketch14
pad13.setExpression("Length", "Params.pad13_length")

# Sketch on XY plane
sketch15 = body.newObject("Sketcher::SketchObject", "Sketch014")
sketch15.AttachmentSupport = (doc.getObject("XY_Plane"), [""])
sketch15.MapMode = "FlatFace"
sketch15.AttachmentOffset = App.Placement(Vector(0, 0, -0.8), App.Rotation())
add_polygon(sketch15, [(4, 16), (4, 9), (-4, 9), (-4, 16)])  # lines 0-3
sketch15.addConstraint([
    Sketcher.Constraint("Vertical", 0),
    Sketcher.Constraint("Horizontal", 1),
    Sketcher.Constraint("Vertical", 2),
    Sketcher.Constraint("Horizontal", 3),
    Sketcher.Constraint("DistanceX", 1, 2, 1, 1, 7.8),
    Sketcher.Constraint("DistanceY", 0, 2, 0, 1, 7.5),
    Sketcher.Constraint("DistanceX", -1, 1, 0, 2, 4.0),
    Sketcher.Constraint("DistanceY", -1, 1, 0, 2, 9.0),
])
sketch15.setExpression("Constraints[8]", "Params.sketch15_width")
sketch15.setExpression("Constraints[9]", "Params.sketch15_height")
pad14 = body.newObject("PartDesign::Pad", "Pad013")
pad14.Profile = sketch15
pad14.setExpression("Length", "Params.pad14_length")
pad14.Reversed = True

# Sketch on XY plane
sketch16 = body.newObject("Sketcher::SketchObject", "Sketch015")
sketch16.AttachmentSupport = (doc.getObject("XY_Plane"), [""])
sketch16.MapMode = "FlatFace"
sketch16.AttachmentOffset = App.Placement(Vector(0, 0, -2.1), App.Rotation())
sketch16.addGeometry([
    Part.LineSegment(Vector(-4, 7, 0), Vector(-19, 7, 0)),
    Part.ArcOfCircle(Part.Circle(Vector(-19, 13, 0), Vector(0, 0, 1), 6), math.radians(90), math.radians(270)),
    Part.LineSegment(Vector(-19, 18, 0), Vector(-4, 18, 0)),
    Part.LineSegment(Vector(-4, 18, 0), Vector(-4, 7, 0)),
], False)
sketch16.addConstraint([
    Sketcher.Constraint("Tangent", 0, 2, 1, 2),
    Sketcher.Constraint("Tangent", 1, 1, 2, 1),
    Sketcher.Constraint("Coincident", 2, 2, 3, 1),
    Sketcher.Constraint("Coincident", 3, 2, 0, 1),
    Sketcher.Constraint("Horizontal", 0),
    Sketcher.Constraint("Horizontal", 2),
    Sketcher.Constraint("Vertical", 3),
    Sketcher.Constraint("Radius", 1, 5.5),
    Sketcher.Constraint("DistanceX", 0, 2, 0, 1, 15.5),
    Sketcher.Constraint("DistanceX", 1, 3, -1, 1, 19.3),
    Sketcher.Constraint("DistanceY", -1, 1, 1, 3, 12.75),
])
sketch16.setExpression("Constraints[7]", "Params.sketch16_radius")
sketch16.setExpression("Constraints[8]", "Params.sketch16_width")
pad15 = body.newObject("PartDesign::Pad", "Pad014")
pad15.Profile = sketch16
pad15.setExpression("Length", "Params.pad15_length")
pad15.Midplane = True

# Sketch on YZ plane
sketch17 = body.newObject("Sketcher::SketchObject", "Sketch016")
sketch17.AttachmentSupport = (doc.getObject("YZ_Plane"), [""])
sketch17.MapMode = "FlatFace"
sketch17.AttachmentOffset = App.Placement(Vector(0, 0, -24.8), App.Rotation())
sketch17.addGeometry(Part.Circle(Vector(12.8, -2.1, 0), Vector(0, 0, 1), 3.5), False)
sketch17.addConstraint([
    Sketcher.Constraint("Diameter", 0, 7.0),
    Sketcher.Constraint("DistanceY", 0, 3, -1, 1, 2.1),
    Sketcher.Constraint("DistanceX", -1, 1, 0, 3, 12.75),
])
sketch17.setExpression("Constraints[0]", "Params.sketch17_diameter")
pad16 = body.newObject("PartDesign::Pad", "Pad015")
pad16.Profile = sketch17
pad16.Type = "TwoLengths"
pad16.setExpression("Length", "Params.pad16_length")
pad16.setExpression("Length2", "Params.pad16_length2")
pad16.Reversed = True

# Sketch on YZ plane
sketch18 = body.newObject("Sketcher::SketchObject", "Sketch017")
sketch18.AttachmentSupport = (doc.getObject("YZ_Plane"), [""])
sketch18.MapMode = "FlatFace"
sketch18.AttachmentOffset = App.Placement(Vector(0, 0, -30.8), App.Rotation())
sketch18.addGeometry(Part.Circle(Vector(12.8, -2.1, 0), Vector(0, 0, 1), 2), False)
sketch18.addConstraint([
    Sketcher.Constraint("Diameter", 0, 4.0),
    Sketcher.Constraint("DistanceY", 0, 3, -1, 1, 2.1),
    Sketcher.Constraint("DistanceX", -1, 1, 0, 3, 12.75),
])
sketch18.setExpression("Constraints[0]", "Params.sketch18_diameter")
pad17 = body.newObject("PartDesign::Pad", "Pad016")
pad17.Profile = sketch18
pad17.setExpression("Length", "Params.pad17_length")
pad17.Reversed = True

doc.recompute()
